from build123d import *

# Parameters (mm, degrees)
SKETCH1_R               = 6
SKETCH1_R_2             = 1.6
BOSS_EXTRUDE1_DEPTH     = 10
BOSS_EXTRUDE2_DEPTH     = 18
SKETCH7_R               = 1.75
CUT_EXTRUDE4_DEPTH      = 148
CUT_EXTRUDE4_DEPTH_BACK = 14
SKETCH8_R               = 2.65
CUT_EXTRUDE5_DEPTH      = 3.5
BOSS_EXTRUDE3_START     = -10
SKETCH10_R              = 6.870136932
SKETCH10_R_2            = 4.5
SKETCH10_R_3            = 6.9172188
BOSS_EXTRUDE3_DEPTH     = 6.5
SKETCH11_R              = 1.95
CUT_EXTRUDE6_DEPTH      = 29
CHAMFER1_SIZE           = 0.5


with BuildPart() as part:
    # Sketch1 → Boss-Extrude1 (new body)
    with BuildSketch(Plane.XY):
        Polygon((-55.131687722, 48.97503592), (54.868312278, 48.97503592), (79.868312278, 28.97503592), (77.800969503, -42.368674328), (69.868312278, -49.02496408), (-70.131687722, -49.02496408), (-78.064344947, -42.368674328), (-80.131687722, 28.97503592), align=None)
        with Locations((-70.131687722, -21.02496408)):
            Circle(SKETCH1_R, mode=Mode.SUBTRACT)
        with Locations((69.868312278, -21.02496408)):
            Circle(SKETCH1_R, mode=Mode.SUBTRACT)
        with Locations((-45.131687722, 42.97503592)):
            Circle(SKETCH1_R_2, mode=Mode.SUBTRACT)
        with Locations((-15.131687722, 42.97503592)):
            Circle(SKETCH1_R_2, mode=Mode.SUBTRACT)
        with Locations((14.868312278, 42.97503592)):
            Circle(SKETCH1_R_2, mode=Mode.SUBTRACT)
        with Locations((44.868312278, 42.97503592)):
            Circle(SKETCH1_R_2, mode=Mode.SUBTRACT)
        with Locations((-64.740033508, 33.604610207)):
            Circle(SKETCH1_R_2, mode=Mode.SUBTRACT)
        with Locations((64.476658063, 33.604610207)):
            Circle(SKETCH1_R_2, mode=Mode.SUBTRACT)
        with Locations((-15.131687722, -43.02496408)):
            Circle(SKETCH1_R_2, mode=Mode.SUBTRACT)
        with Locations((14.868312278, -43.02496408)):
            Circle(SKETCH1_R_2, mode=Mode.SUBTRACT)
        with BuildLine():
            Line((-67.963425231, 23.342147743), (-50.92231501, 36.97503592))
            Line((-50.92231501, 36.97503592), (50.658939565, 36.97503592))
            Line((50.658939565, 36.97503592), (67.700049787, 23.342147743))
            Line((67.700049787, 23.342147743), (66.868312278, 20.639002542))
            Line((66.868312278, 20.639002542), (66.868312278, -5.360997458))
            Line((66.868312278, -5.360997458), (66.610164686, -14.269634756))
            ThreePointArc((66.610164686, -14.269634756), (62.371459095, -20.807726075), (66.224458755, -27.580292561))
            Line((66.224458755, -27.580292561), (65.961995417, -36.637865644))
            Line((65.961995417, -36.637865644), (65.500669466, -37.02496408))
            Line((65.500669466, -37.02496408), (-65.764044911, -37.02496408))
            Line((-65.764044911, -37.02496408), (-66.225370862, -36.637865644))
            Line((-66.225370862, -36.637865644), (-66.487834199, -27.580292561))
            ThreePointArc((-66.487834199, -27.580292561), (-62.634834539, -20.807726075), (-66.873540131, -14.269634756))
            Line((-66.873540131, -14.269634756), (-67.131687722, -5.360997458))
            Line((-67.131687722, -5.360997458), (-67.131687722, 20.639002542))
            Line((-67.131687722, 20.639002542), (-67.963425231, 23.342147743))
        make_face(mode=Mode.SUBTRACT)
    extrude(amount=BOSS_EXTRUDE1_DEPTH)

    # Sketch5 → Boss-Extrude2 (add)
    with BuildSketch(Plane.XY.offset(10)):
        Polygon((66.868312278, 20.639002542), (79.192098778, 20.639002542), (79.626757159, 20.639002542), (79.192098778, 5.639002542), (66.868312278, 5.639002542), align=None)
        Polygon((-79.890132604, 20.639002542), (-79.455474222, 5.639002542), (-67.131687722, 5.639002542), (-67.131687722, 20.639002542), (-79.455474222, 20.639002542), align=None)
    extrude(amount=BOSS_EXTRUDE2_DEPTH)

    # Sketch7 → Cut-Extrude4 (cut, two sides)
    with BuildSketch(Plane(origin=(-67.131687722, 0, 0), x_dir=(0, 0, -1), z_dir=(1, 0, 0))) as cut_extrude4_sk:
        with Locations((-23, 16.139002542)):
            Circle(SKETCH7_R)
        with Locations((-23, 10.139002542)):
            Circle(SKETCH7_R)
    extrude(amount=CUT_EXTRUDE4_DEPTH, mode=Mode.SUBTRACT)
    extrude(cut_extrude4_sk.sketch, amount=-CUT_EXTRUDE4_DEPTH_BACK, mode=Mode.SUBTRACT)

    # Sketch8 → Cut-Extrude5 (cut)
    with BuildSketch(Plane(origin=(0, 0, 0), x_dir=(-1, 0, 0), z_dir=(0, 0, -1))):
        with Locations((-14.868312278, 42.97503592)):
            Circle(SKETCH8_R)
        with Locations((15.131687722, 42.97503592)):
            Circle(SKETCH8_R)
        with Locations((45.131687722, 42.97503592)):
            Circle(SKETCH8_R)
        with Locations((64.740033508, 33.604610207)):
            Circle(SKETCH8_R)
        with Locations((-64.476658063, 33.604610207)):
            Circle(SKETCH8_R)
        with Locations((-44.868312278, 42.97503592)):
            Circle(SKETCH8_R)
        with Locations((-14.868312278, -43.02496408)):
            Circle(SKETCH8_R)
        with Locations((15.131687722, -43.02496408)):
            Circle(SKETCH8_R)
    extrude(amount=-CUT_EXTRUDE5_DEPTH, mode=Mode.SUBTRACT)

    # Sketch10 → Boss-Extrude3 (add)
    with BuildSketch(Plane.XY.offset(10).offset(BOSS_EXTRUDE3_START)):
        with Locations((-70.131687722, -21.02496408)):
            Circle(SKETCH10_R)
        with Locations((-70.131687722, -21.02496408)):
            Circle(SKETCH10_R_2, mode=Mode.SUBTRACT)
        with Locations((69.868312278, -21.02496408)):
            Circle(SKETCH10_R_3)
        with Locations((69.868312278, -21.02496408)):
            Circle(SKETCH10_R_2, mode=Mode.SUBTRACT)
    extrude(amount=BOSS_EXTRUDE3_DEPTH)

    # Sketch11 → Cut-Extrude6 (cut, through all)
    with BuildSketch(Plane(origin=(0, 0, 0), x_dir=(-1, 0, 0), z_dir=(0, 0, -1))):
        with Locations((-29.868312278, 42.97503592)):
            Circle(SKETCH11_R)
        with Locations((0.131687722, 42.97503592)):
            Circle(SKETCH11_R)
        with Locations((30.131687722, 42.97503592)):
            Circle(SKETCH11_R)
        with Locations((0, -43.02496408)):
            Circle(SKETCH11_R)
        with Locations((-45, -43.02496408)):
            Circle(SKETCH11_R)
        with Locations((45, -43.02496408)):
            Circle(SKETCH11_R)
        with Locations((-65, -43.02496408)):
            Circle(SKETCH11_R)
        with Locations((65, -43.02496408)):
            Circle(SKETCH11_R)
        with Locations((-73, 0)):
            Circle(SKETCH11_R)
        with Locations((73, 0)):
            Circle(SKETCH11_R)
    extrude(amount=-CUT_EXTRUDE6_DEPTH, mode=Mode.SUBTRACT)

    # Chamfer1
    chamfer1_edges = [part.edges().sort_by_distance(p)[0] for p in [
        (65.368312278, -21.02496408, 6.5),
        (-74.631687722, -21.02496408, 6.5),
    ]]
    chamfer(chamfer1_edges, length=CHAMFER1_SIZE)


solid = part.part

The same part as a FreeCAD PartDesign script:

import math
import FreeCAD as App
import Part
import Sketcher

V = App.Vector
Q = App.Units.Quantity


def edges_at(feature, points):
    """Names of the edges that pass closest to the given points."""
    edges = feature.Shape.Edges
    near = lambda p: min(range(len(edges)), key=lambda i: edges[i].distToShape(Part.Vertex(*p))[0])
    return sorted({f"Edge{near(p) + 1}" for p in points})

doc = App.newDocument("Part")
body = doc.addObject("PartDesign::Body", "Body")

sketch1 = body.newObject("Sketcher::SketchObject", "Sketch")
sketch1.AttachmentSupport = (doc.getObject("XY_Plane"), [""])
sketch1.MapMode = "FlatFace"
sketch1.addGeometry(Part.LineSegment(V(54.9, 49, 0), V(-55.1, 49, 0)), False)
sketch1.addGeometry(Part.LineSegment(V(-55.1, 49, 0), V(-80.1, 29, 0)), False)
sketch1.addGeometry(Part.LineSegment(V(-80.1, 29, 0), V(-78.1, -42.4, 0)), False)
sketch1.addGeometry(Part.LineSegment(V(-78.1, -42.4, 0), V(-70.1, -49, 0)), False)
sketch1.addGeometry(Part.LineSegment(V(-70.1, -49, 0), V(69.9, -49, 0)), False)
sketch1.addGeometry(Part.LineSegment(V(69.9, -49, 0), V(77.8, -42.4, 0)), False)
sketch1.addGeometry(Part.LineSegment(V(77.8, -42.4, 0), V(79.9, 29, 0)), False)
sketch1.addGeometry(Part.LineSegment(V(79.9, 29, 0), V(54.9, 49, 0)), False)
sketch1.addGeometry(Part.Circle(V(14.9, -43, 0), V(0, 0, 1), 1.6), False)
sketch1.addGeometry(Part.Circle(V(69.9, -21, 0), V(0, 0, 1), 6), False)
sketch1.addGeometry(Part.Circle(V(-15.1, -43, 0), V(0, 0, 1), 1.6), False)
sketch1.addGeometry(Part.Circle(V(-70.1, -21, 0), V(0, 0, 1), 6), False)
sketch1.addGeometry(Part.Circle(V(64.5, 33.6, 0), V(0, 0, 1), 1.6), False)
sketch1.addGeometry(Part.Circle(V(44.9, 43, 0), V(0, 0, 1), 1.6), False)
sketch1.addGeometry(Part.Circle(V(14.9, 43, 0), V(0, 0, 1), 1.6), False)
sketch1.addGeometry(Part.LineSegment(V(-68, 23.3, 0), V(-50.9, 37, 0)), False)
sketch1.addGeometry(Part.LineSegment(V(-50.9, 37, 0), V(50.7, 37, 0)), False)
sketch1.addGeometry(Part.LineSegment(V(50.7, 37, 0), V(67.7, 23.3, 0)), False)
sketch1.addGeometry(Part.LineSegment(V(67.7, 23.3, 0), V(66.9, 20.6, 0)), False)
sketch1.addGeometry(Part.LineSegment(V(66.9, 20.6, 0), V(66.9, -5.4, 0)), False)
sketch1.addGeometry(Part.LineSegment(V(66.9, -5.4, 0), V(66.6, -14.3, 0)), False)
sketch1.addGeometry(Part.ArcOfCircle(Part.Circle(V(69.9, -21, 0), V(0, 0, 1), 7.5), math.radians(116), math.radians(241)), False)
sketch1.addGeometry(Part.LineSegment(V(66.2, -27.6, 0), V(66, -36.6, 0)), False)
sketch1.addGeometry(Part.LineSegment(V(66, -36.6, 0), V(65.5, -37, 0)), False)
sketch1.addGeometry(Part.LineSegment(V(65.5, -37, 0), V(-65.8, -37, 0)), False)
sketch1.addGeometry(Part.LineSegment(V(-65.8, -37, 0), V(-66.2, -36.6, 0)), False)
sketch1.addGeometry(Part.LineSegment(V(-66.2, -36.6, 0), V(-66.5, -27.6, 0)), False)
sketch1.addGeometry(Part.ArcOfCircle(Part.Circle(V(-70.1, -21, 0), V(0, 0, 1), 7.5), math.radians(-61), math.radians(64)), False)
sketch1.addGeometry(Part.LineSegment(V(-66.9, -14.3, 0), V(-67.1, -5.4, 0)), False)
sketch1.addGeometry(Part.LineSegment(V(-67.1, -5.4, 0), V(-67.1, 20.6, 0)), False)
sketch1.addGeometry(Part.LineSegment(V(-67.1, 20.6, 0), V(-68, 23.3, 0)), False)
sketch1.addGeometry(Part.Circle(V(-15.1, 43, 0), V(0, 0, 1), 1.6), False)
sketch1.addGeometry(Part.Circle(V(-45.1, 43, 0), V(0, 0, 1), 1.6), False)
sketch1.addGeometry(Part.Circle(V(-64.7, 33.6, 0), V(0, 0, 1), 1.6), False)
sketch1.addConstraint(Sketcher.Constraint("Coincident", 0, 2, 1, 1))
sketch1.addConstraint(Sketcher.Constraint("Coincident", 1, 2, 2, 1))
sketch1.addConstraint(Sketcher.Constraint("Coincident", 2, 2, 3, 1))
sketch1.addConstraint(Sketcher.Constraint("Coincident", 3, 2, 4, 1))
sketch1.addConstraint(Sketcher.Constraint("Coincident", 4, 2, 5, 1))
sketch1.addConstraint(Sketcher.Constraint("Coincident", 5, 2, 6, 1))
sketch1.addConstraint(Sketcher.Constraint("Coincident", 6, 2, 7, 1))
sketch1.addConstraint(Sketcher.Constraint("Coincident", 7, 2, 0, 1))
sketch1.addConstraint(Sketcher.Constraint("Coincident", 15, 2, 16, 1))
sketch1.addConstraint(Sketcher.Constraint("Coincident", 16, 2, 17, 1))
sketch1.addConstraint(Sketcher.Constraint("Coincident", 17, 2, 18, 1))
sketch1.addConstraint(Sketcher.Constraint("Coincident", 18, 2, 19, 1))
sketch1.addConstraint(Sketcher.Constraint("Coincident", 19, 2, 20, 1))
sketch1.addConstraint(Sketcher.Constraint("Coincident", 20, 2, 21, 1))
sketch1.addConstraint(Sketcher.Constraint("Coincident", 21, 2, 22, 1))
sketch1.addConstraint(Sketcher.Constraint("Coincident", 22, 2, 23, 1))
sketch1.addConstraint(Sketcher.Constraint("Coincident", 23, 2, 24, 1))
sketch1.addConstraint(Sketcher.Constraint("Coincident", 24, 2, 25, 1))
sketch1.addConstraint(Sketcher.Constraint("Coincident", 25, 2, 26, 1))
sketch1.addConstraint(Sketcher.Constraint("Coincident", 26, 2, 27, 1))
sketch1.addConstraint(Sketcher.Constraint("Coincident", 27, 2, 28, 1))
sketch1.addConstraint(Sketcher.Constraint("Coincident", 28, 2, 29, 1))
sketch1.addConstraint(Sketcher.Constraint("Coincident", 29, 2, 30, 1))
sketch1.addConstraint(Sketcher.Constraint("Coincident", 30, 2, 15, 1))
sketch1.addConstraint(Sketcher.Constraint("Horizontal", 0))
sketch1.addConstraint(Sketcher.Constraint("Horizontal", 4))
sketch1.addConstraint(Sketcher.Constraint("Horizontal", 16))
sketch1.addConstraint(Sketcher.Constraint("Vertical", 19))
sketch1.addConstraint(Sketcher.Constraint("Horizontal", 24))
sketch1.addConstraint(Sketcher.Constraint("Vertical", 29))
sketch1.addConstraint(Sketcher.Constraint("Coincident", 21, 3, 9, 3))
sketch1.addConstraint(Sketcher.Constraint("Coincident", 27, 3, 11, 3))
sketch1.addConstraint(Sketcher.Constraint("Equal", 8, 10))
sketch1.addConstraint(Sketcher.Constraint("Equal", 9, 11))
sketch1.addConstraint(Sketcher.Constraint("Equal", 10, 12))
sketch1.addConstraint(Sketcher.Constraint("Equal", 12, 13))
sketch1.addConstraint(Sketcher.Constraint("Equal", 13, 14))
sketch1.addConstraint(Sketcher.Constraint("Equal", 21, 27))
sketch1.addConstraint(Sketcher.Constraint("Equal", 14, 31))
sketch1.addConstraint(Sketcher.Constraint("Equal", 31, 32))
sketch1.addConstraint(Sketcher.Constraint("Equal", 32, 33))
sketch1.addConstraint(Sketcher.Constraint("Parallel", 1, 15))
sketch1.addConstraint(Sketcher.Constraint("Parallel", 7, 17))
sketch1.addConstraint(Sketcher.Constraint("Parallel", 6, 20))
sketch1.addConstraint(Sketcher.Constraint("Parallel", 20, 22))
sketch1.addConstraint(Sketcher.Constraint("Parallel", 5, 23))
sketch1.addConstraint(Sketcher.Constraint("Parallel", 3, 25))
sketch1.addConstraint(Sketcher.Constraint("Parallel", 2, 26))
sketch1.addConstraint(Sketcher.Constraint("Parallel", 26, 28))
sketch1.addConstraint(Sketcher.Constraint("Horizontal", 8, 3, 10, 3))
sketch1.addConstraint(Sketcher.Constraint("Horizontal", 9, 3, 11, 3))
sketch1.addConstraint(Sketcher.Constraint("Horizontal", 13, 3, 14, 3))
sketch1.addConstraint(Sketcher.Constraint("Horizontal", 14, 3, 31, 3))
sketch1.addConstraint(Sketcher.Constraint("Horizontal", 31, 3, 32, 3))
sketch1.addConstraint(Sketcher.Constraint("Horizontal", 12, 3, 33, 3))
sketch1.addConstraint(Sketcher.Constraint("Horizontal", 2, 2, 5, 2))
sketch1.addConstraint(Sketcher.Constraint("Horizontal", 1, 2, 6, 2))
sketch1.addConstraint(Sketcher.Constraint("Horizontal", 22, 2, 25, 2))
sketch1.addConstraint(Sketcher.Constraint("Horizontal", 21, 2, 26, 2))
sketch1.addConstraint(Sketcher.Constraint("Horizontal", 20, 2, 27, 2))
sketch1.addConstraint(Sketcher.Constraint("Horizontal", 19, 2, 28, 2))
sketch1.addConstraint(Sketcher.Constraint("Horizontal", 18, 2, 29, 2))
sketch1.addConstraint(Sketcher.Constraint("Horizontal", 17, 2, 30, 2))
sketch1.addConstraint(Sketcher.Constraint("Vertical", 8, 3, 14, 3))
sketch1.addConstraint(Sketcher.Constraint("Vertical", 10, 3, 31, 3))
sketch1.addConstraint(Sketcher.Constraint("Vertical", 27, 3, 3, 2))
sketch1.addConstraint(Sketcher.Constraint("Vertical", 21, 3, 4, 2))
sketch1.addConstraint(Sketcher.Constraint("Equal", 3, 5))
sketch1.addConstraint(Sketcher.Constraint("Equal", 2, 6))
sketch1.addConstraint(Sketcher.Constraint("Equal", 1, 7))
sketch1.addConstraint(Sketcher.Constraint("Equal", 18, 30))
sketch1.addConstraint(Sketcher.Constraint("Diameter", 9, Q("12 mm")))
sketch1.addConstraint(Sketcher.Constraint("Diameter", 8, Q("3.2 mm")))
sketch1.addConstraint(Sketcher.Constraint("Radius", 21, Q("7.5 mm")))
sketch1.addConstraint(Sketcher.Constraint("DistanceX", 0, 2, 0, 1, Q("110 mm")))
sketch1.addConstraint(Sketcher.Constraint("DistanceX", 4, 1, 4, 2, Q("140 mm")))
sketch1.addConstraint(Sketcher.Constraint("DistanceY", 19, 2, 19, 1, Q("26 mm")))
sketch1.addConstraint(Sketcher.Constraint("Angle", 3, Q("-40 deg")))
sketch1.addConstraint(Sketcher.Constraint("DistanceX", 8, 3, 9, 3, Q("55 mm")))
sketch1.addConstraint(Sketcher.Constraint("DistanceY", 8, 3, 9, 3, Q("22 mm")))
sketch1.addConstraint(Sketcher.Constraint("DistanceX", 10, 3, 8, 3, Q("30 mm")))
sketch1.addConstraint(Sketcher.Constraint("DistanceX", 13, 3, 9, 3, Q("25 mm")))
sketch1.addConstraint(Sketcher.Constraint("DistanceY", 9, 3, 13, 3, Q("64 mm")))
sketch1.addConstraint(Sketcher.Constraint("DistanceX", 32, 3, 31, 3, Q("30 mm")))
sketch1.addConstraint(Sketcher.Constraint("DistanceY", 32, 3, 0, 2, Q("6 mm")))
sketch1.addConstraint(Sketcher.Constraint("DistanceX", 1, 2, 0, 2, Q("25 mm")))
sketch1.addConstraint(Sketcher.Constraint("DistanceY", 1, 2, 0, 2, Q("20 mm")))
sketch1.addConstraint(Sketcher.Constraint("DistanceY", 3, 2, 11, 3, Q("28 mm")))
sketch1.addConstraint(Sketcher.Constraint("DistanceY", 15, 2, 32, 3, Q("6 mm")))
sketch1.addConstraint(Sketcher.Constraint("DistanceX", 18, 2, 6, 2, Q("13 mm")))
sketch1.addConstraint(Sketcher.Constraint("DistanceY", 4, 2, 23, 2, Q("12 mm")))
sketch1.addConstraint(Sketcher.Constraint("DistanceY", 4, 2, 22, 2, Q("12.387098 mm")))
sketch1.addConstraint(Sketcher.Constraint("DistanceX", 23, 2, 5, 2, Q("12.3003 mm")))
sketch1.addConstraint(Sketcher.Constraint("Distance", 3, Q("10.355349 mm")))
sketch1.addConstraint(Sketcher.Constraint("Distance", 15, Q("21.823269 mm")))
sketch1.addConstraint(Sketcher.Constraint("Distance", 18, Q("2.828212 mm")))
sketch1.addConstraint(Sketcher.Constraint("DistanceX", 16, 1, 16, 2, Q("101.581255 mm")))
sketch1.addConstraint(Sketcher.Constraint("DistanceX", -1, 1, 12, 3, Q("64.476658 mm")))
sketch1.addConstraint(Sketcher.Constraint("DistanceY", -1, 1, 12, 3, Q("33.60461 mm")))
sketch1.addConstraint(Sketcher.Constraint("DistanceX", -1, 1, 5, 2, Q("77.80097 mm")))
sketch1.addConstraint(Sketcher.Constraint("DistanceX", 2, 2, 33, 3, Q("13.324311 mm")))
sketch1.addConstraint(Sketcher.Constraint("DistanceY", 8, 3, -1, 1, Q("43.024964 mm")))
pad1 = body.newObject("PartDesign::Pad", "Pad")
pad1.Profile = sketch1
pad1.Length = 10

sketch2 = body.newObject("Sketcher::SketchObject", "Sketch001")
sketch2.AttachmentSupport = (doc.getObject("XY_Plane"), [""])
sketch2.MapMode = "FlatFace"
sketch2.AttachmentOffset = App.Placement(V(0, 0, 10), App.Rotation())
sketch2.addGeometry(Part.LineSegment(V(80, 21, 0), V(67, 21, 0)), False)
sketch2.addGeometry(Part.LineSegment(V(67, 21, 0), V(67, 6, 0)), False)
sketch2.addGeometry(Part.LineSegment(V(67, 6, 0), V(79, 6, 0)), False)
sketch2.addGeometry(Part.LineSegment(V(79, 6, 0), V(80, 21, 0)), False)
sketch2.addGeometry(Part.LineSegment(V(-80, 21, 0), V(-79, 6, 0)), False)
sketch2.addGeometry(Part.LineSegment(V(-79, 6, 0), V(-67, 6, 0)), False)
sketch2.addGeometry(Part.LineSegment(V(-67, 6, 0), V(-67, 21, 0)), False)
sketch2.addGeometry(Part.LineSegment(V(-67, 21, 0), V(-80, 21, 0)), False)
sketch2.addConstraint(Sketcher.Constraint("Coincident", 0, 2, 1, 1))
sketch2.addConstraint(Sketcher.Constraint("Coincident", 1, 2, 2, 1))
sketch2.addConstraint(Sketcher.Constraint("Coincident", 2, 2, 3, 1))
sketch2.addConstraint(Sketcher.Constraint("Coincident", 3, 2, 0, 1))
sketch2.addConstraint(Sketcher.Constraint("Coincident", 4, 2, 5, 1))
sketch2.addConstraint(Sketcher.Constraint("Coincident", 5, 2, 6, 1))
sketch2.addConstraint(Sketcher.Constraint("Coincident", 6, 2, 7, 1))
sketch2.addConstraint(Sketcher.Constraint("Coincident", 7, 2, 4, 1))
sketch2.addConstraint(Sketcher.Constraint("Horizontal", 0))
sketch2.addConstraint(Sketcher.Constraint("Vertical", 1))
sketch2.addConstraint(Sketcher.Constraint("Horizontal", 2))
sketch2.addConstraint(Sketcher.Constraint("Horizontal", 5))
sketch2.addConstraint(Sketcher.Constraint("Vertical", 6))
sketch2.addConstraint(Sketcher.Constraint("Horizontal", 7))
sketch2.addConstraint(Sketcher.Constraint("Horizontal", 2, 2, 4, 2))
sketch2.addConstraint(Sketcher.Constraint("Horizontal", 3, 2, 6, 2))
sketch2.addConstraint(Sketcher.Constraint("Equal", 2, 5))
sketch2.addConstraint(Sketcher.Constraint("Equal", 0, 7))
sketch2.addConstraint(Sketcher.Constraint("DistanceY", 1, 2, 1, 1, Q("15 mm")))
sketch2.addConstraint(Sketcher.Constraint("DistanceX", 5, 2, 1, 2, Q("134 mm")))
sketch2.addConstraint(Sketcher.Constraint("DistanceX", -1, 1, 2, 2, Q("79.192099 mm")))
sketch2.addConstraint(Sketcher.Constraint("DistanceX", 0, 2, 0, 1, Q("12.758445 mm")))
sketch2.addConstraint(Sketcher.Constraint("DistanceX", 2, 1, 2, 2, Q("12.323786 mm")))
sketch2.addConstraint(Sketcher.Constraint("DistanceY", -1, 1, 0, 2, Q("20.639003 mm")))
pad2 = body.newObject("PartDesign::Pad", "Pad001")
pad2.Profile = sketch2
pad2.Length = 18

sketch3 = body.newObject("Sketcher::SketchObject", "Sketch002")
sketch3.AttachmentSupport = (doc.getObject("YZ_Plane"), [""])
sketch3.MapMode = "FlatFace"
sketch3.AttachmentOffset = App.Placement(V(0, 0, -67.131688), App.Rotation())
sketch3.addGeometry(Part.Circle(V(16.1, 23, 0), V(0, 0, 1), 1.8), False)
sketch3.addGeometry(Part.Circle(V(10.1, 23, 0), V(0, 0, 1), 1.8), False)
sketch3.addConstraint(Sketcher.Constraint("Equal", 0, 1))
sketch3.addConstraint(Sketcher.Constraint("Horizontal", 0, 3, 1, 3))
sketch3.addConstraint(Sketcher.Constraint("Diameter", 0, Q("3.5 mm")))
sketch3.addConstraint(Sketcher.Constraint("DistanceY", -1, 1, 0, 3, Q("23 mm")))
sketch3.addConstraint(Sketcher.Constraint("DistanceX", 1, 3, 0, 3, Q("6 mm")))
sketch3.addConstraint(Sketcher.Constraint("DistanceX", -1, 1, 0, 3, Q("16.139003 mm")))
pocket1 = body.newObject("PartDesign::Pocket", "Pocket")
pocket1.Profile = sketch3
pocket1.Type = "ThroughAll"
pocket1.Midplane = True

sketch4 = body.newObject("Sketcher::SketchObject", "Sketch003")
sketch4.AttachmentSupport = (doc.getObject("XY_Plane"), [""])
sketch4.MapMode = "FlatFace"
sketch4.addGeometry(Part.Circle(V(14.9, 43, 0), V(0, 0, 1), 2.6), False)
sketch4.addGeometry(Part.Circle(V(-15.1, 43, 0), V(0, 0, 1), 2.6), False)
sketch4.addGeometry(Part.Circle(V(-45.1, 43, 0), V(0, 0, 1), 2.6), False)
sketch4.addGeometry(Part.Circle(V(-64.7, 33.6, 0), V(0, 0, 1), 2.6), False)
sketch4.addGeometry(Part.Circle(V(64.5, 33.6, 0), V(0, 0, 1), 2.6), False)
sketch4.addGeometry(Part.Circle(V(44.9, 43, 0), V(0, 0, 1), 2.6), False)
sketch4.addGeometry(Part.Circle(V(14.9, -43, 0), V(0, 0, 1), 2.6), False)
sketch4.addGeometry(Part.Circle(V(-15.1, -43, 0), V(0, 0, 1), 2.6), False)
sketch4.addConstraint(Sketcher.Constraint("Equal", 0, 1))
sketch4.addConstraint(Sketcher.Constraint("Equal", 1, 2))
sketch4.addConstraint(Sketcher.Constraint("Equal", 2, 3))
sketch4.addConstraint(Sketcher.Constraint("Equal", 3, 4))
sketch4.addConstraint(Sketcher.Constraint("Equal", 4, 5))
sketch4.addConstraint(Sketcher.Constraint("Equal", 5, 6))
sketch4.addConstraint(Sketcher.Constraint("Equal", 6, 7))
sketch4.addConstraint(Sketcher.Constraint("Horizontal", 0, 3, 1, 3))
sketch4.addConstraint(Sketcher.Constraint("Horizontal", 1, 3, 2, 3))
sketch4.addConstraint(Sketcher.Constraint("Horizontal", 3, 3, 4, 3))
sketch4.addConstraint(Sketcher.Constraint("Horizontal", 2, 3, 5, 3))
sketch4.addConstraint(Sketcher.Constraint("Horizontal", 6, 3, 7, 3))
sketch4.addConstraint(Sketcher.Constraint("Vertical", 0, 3, 6, 3))
sketch4.addConstraint(Sketcher.Constraint("Vertical", 1, 3, 7, 3))
sketch4.addConstraint(Sketcher.Constraint("Diameter", 0, Q("5.3 mm")))
sketch4.addConstraint(Sketcher.Constraint("DistanceX", 1, 3, 0, 3, Q("30 mm")))
sketch4.addConstraint(Sketcher.Constraint("DistanceX", 2, 3, 1, 3, Q("30 mm")))
sketch4.addConstraint(Sketcher.Constraint("DistanceX", 0, 3, 5, 3, Q("30 mm")))
sketch4.addConstraint(Sketcher.Constraint("DistanceY", 6, 3, 0, 3, Q("86 mm")))
sketch4.addConstraint(Sketcher.Constraint("DistanceY", -1, 1, 3, 3, Q("33.60461 mm")))
sketch4.addConstraint(Sketcher.Constraint("DistanceX", -1, 1, 4, 3, Q("64.476658 mm")))
sketch4.addConstraint(Sketcher.Constraint("DistanceX", 3, 3, 4, 3, Q("129.216692 mm")))
sketch4.addConstraint(Sketcher.Constraint("DistanceX", -1, 1, 0, 3, Q("14.868312 mm")))
sketch4.addConstraint(Sketcher.Constraint("DistanceY", -1, 1, 0, 3, Q("42.975036 mm")))
pocket2 = body.newObject("PartDesign::Pocket", "Pocket001")
pocket2.Profile = sketch4
pocket2.Length = 3.5
pocket2.Reversed = True

sketch5 = body.newObject("Sketcher::SketchObject", "Sketch004")
sketch5.AttachmentSupport = (doc.getObject("XY_Plane"), [""])
sketch5.MapMode = "FlatFace"
sketch5.addGeometry(Part.Circle(V(-70.1, -21, 0), V(0, 0, 1), 6.9), False)
sketch5.addGeometry(Part.Circle(V(-70.1, -21, 0), V(0, 0, 1), 4.5), False)
sketch5.addGeometry(Part.Circle(V(69.9, -21, 0), V(0, 0, 1), 6.9), False)
sketch5.addGeometry(Part.Circle(V(69.9, -21, 0), V(0, 0, 1), 4.5), False)
sketch5.addConstraint(Sketcher.Constraint("Coincident", 1, 3, 0, 3))
sketch5.addConstraint(Sketcher.Constraint("Coincident", 3, 3, 2, 3))
sketch5.addConstraint(Sketcher.Constraint("Equal", 1, 3))
sketch5.addConstraint(Sketcher.Constraint("Horizontal", 1, 3, 2, 3))
sketch5.addConstraint(Sketcher.Constraint("Diameter", 1, Q("9 mm")))
sketch5.addConstraint(Sketcher.Constraint("DistanceX", 0, 3, 2, 3, Q("140 mm")))
sketch5.addConstraint(Sketcher.Constraint("Diameter", 0, Q("13.740274 mm")))
sketch5.addConstraint(Sketcher.Constraint("Diameter", 2, Q("13.834438 mm")))
sketch5.addConstraint(Sketcher.Constraint("DistanceX", 0, 3, -1, 1, Q("70.131688 mm")))
sketch5.addConstraint(Sketcher.Constraint("DistanceY", 0, 3, -1, 1, Q("21.024964 mm")))
pad3 = body.newObject("PartDesign::Pad", "Pad002")
pad3.Profile = sketch5
pad3.Length = 6.5

sketch6 = body.newObject("Sketcher::SketchObject", "Sketch005")
sketch6.AttachmentSupport = (doc.getObject("XY_Plane"), [""])
sketch6.MapMode = "FlatFace"
sketch6.addGeometry(Part.Circle(V(29.9, 43, 0), V(0, 0, 1), 1.9), False)
sketch6.addGeometry(Part.Circle(V(-0.1, 43, 0), V(0, 0, 1), 1.9), False)
sketch6.addGeometry(Part.Circle(V(-30.1, 43, 0), V(0, 0, 1), 1.9), False)
sketch6.addGeometry(Part.Circle(V(0, -43, 0), V(0, 0, 1), 1.9), False)
sketch6.addGeometry(Part.Circle(V(45, -43, 0), V(0, 0, 1), 1.9), False)
sketch6.addGeometry(Part.Circle(V(-45, -43, 0), V(0, 0, 1), 1.9), False)
sketch6.addGeometry(Part.Circle(V(65, -43, 0), V(0, 0, 1), 1.9), False)
sketch6.addGeometry(Part.Circle(V(-65, -43, 0), V(0, 0, 1), 1.9), False)
sketch6.addGeometry(Part.Circle(V(73, 0, 0), V(0, 0, 1), 1.9), False)
sketch6.addGeometry(Part.Circle(V(-73, 0, 0), V(0, 0, 1), 1.9), False)
sketch6.addConstraint(Sketcher.Constraint("Equal", 0, 1))
sketch6.addConstraint(Sketcher.Constraint("Equal", 1, 2))
sketch6.addConstraint(Sketcher.Constraint("Equal", 2, 3))
sketch6.addConstraint(Sketcher.Constraint("Equal", 3, 4))
sketch6.addConstraint(Sketcher.Constraint("Equal", 4, 5))
sketch6.addConstraint(Sketcher.Constraint("Equal", 5, 6))
sketch6.addConstraint(Sketcher.Constraint("Equal", 6, 7))
sketch6.addConstraint(Sketcher.Constraint("Equal", 7, 8))
sketch6.addConstraint(Sketcher.Constraint("Equal", 8, 9))
sketch6.addConstraint(Sketcher.Constraint("Symmetric", 8, 3, 9, 3, -1, 1))
sketch6.addConstraint(Sketcher.Constraint("Symmetric", 4, 3, 5, 3, -2))
sketch6.addConstraint(Sketcher.Constraint("Symmetric", 6, 3, 7, 3, -2))
sketch6.addConstraint(Sketcher.Constraint("PointOnObject", 3, 3, -2))
sketch6.addConstraint(Sketcher.Constraint("PointOnObject", 8, 3, -1))
sketch6.addConstraint(Sketcher.Constraint("Horizontal", 0, 3, 1, 3))
sketch6.addConstraint(Sketcher.Constraint("Horizontal", 1, 3, 2, 3))
sketch6.addConstraint(Sketcher.Constraint("Horizontal", 3, 3, 4, 3))
sketch6.addConstraint(Sketcher.Constraint("Horizontal", 5, 3, 6, 3))
sketch6.addConstraint(Sketcher.Constraint("Diameter", 0, Q("3.9 mm")))
sketch6.addConstraint(Sketcher.Constraint("DistanceX", -1, 1, 4, 3, Q("45 mm")))
sketch6.addConstraint(Sketcher.Constraint("DistanceX", -1, 1, 6, 3, Q("65 mm")))
sketch6.addConstraint(Sketcher.Constraint("DistanceX", -1, 1, 8, 3, Q("73 mm")))
sketch6.addConstraint(Sketcher.Constraint("DistanceX", 1, 3, 0, 3, Q("30 mm")))
sketch6.addConstraint(Sketcher.Constraint("DistanceX", 2, 3, 1, 3, Q("30 mm")))
sketch6.addConstraint(Sketcher.Constraint("DistanceY", 3, 3, 1, 3, Q("86 mm")))
sketch6.addConstraint(Sketcher.Constraint("DistanceX", -1, 1, 0, 3, Q("29.868312 mm")))
sketch6.addConstraint(Sketcher.Constraint("DistanceY", -1, 1, 0, 3, Q("42.975036 mm")))
pocket3 = body.newObject("PartDesign::Pocket", "Pocket002")
pocket3.Profile = sketch6
pocket3.Type = "ThroughAll"
pocket3.Reversed = True
doc.recompute()

chamfer = body.newObject("PartDesign::Chamfer", "Chamfer")
chamfer.Base = (pocket3, edges_at(pocket3, [(65.368, -21.025, 6.5), (-74.632, -21.025, 6.5)]))
chamfer.Size = 0.5

doc.recompute()
